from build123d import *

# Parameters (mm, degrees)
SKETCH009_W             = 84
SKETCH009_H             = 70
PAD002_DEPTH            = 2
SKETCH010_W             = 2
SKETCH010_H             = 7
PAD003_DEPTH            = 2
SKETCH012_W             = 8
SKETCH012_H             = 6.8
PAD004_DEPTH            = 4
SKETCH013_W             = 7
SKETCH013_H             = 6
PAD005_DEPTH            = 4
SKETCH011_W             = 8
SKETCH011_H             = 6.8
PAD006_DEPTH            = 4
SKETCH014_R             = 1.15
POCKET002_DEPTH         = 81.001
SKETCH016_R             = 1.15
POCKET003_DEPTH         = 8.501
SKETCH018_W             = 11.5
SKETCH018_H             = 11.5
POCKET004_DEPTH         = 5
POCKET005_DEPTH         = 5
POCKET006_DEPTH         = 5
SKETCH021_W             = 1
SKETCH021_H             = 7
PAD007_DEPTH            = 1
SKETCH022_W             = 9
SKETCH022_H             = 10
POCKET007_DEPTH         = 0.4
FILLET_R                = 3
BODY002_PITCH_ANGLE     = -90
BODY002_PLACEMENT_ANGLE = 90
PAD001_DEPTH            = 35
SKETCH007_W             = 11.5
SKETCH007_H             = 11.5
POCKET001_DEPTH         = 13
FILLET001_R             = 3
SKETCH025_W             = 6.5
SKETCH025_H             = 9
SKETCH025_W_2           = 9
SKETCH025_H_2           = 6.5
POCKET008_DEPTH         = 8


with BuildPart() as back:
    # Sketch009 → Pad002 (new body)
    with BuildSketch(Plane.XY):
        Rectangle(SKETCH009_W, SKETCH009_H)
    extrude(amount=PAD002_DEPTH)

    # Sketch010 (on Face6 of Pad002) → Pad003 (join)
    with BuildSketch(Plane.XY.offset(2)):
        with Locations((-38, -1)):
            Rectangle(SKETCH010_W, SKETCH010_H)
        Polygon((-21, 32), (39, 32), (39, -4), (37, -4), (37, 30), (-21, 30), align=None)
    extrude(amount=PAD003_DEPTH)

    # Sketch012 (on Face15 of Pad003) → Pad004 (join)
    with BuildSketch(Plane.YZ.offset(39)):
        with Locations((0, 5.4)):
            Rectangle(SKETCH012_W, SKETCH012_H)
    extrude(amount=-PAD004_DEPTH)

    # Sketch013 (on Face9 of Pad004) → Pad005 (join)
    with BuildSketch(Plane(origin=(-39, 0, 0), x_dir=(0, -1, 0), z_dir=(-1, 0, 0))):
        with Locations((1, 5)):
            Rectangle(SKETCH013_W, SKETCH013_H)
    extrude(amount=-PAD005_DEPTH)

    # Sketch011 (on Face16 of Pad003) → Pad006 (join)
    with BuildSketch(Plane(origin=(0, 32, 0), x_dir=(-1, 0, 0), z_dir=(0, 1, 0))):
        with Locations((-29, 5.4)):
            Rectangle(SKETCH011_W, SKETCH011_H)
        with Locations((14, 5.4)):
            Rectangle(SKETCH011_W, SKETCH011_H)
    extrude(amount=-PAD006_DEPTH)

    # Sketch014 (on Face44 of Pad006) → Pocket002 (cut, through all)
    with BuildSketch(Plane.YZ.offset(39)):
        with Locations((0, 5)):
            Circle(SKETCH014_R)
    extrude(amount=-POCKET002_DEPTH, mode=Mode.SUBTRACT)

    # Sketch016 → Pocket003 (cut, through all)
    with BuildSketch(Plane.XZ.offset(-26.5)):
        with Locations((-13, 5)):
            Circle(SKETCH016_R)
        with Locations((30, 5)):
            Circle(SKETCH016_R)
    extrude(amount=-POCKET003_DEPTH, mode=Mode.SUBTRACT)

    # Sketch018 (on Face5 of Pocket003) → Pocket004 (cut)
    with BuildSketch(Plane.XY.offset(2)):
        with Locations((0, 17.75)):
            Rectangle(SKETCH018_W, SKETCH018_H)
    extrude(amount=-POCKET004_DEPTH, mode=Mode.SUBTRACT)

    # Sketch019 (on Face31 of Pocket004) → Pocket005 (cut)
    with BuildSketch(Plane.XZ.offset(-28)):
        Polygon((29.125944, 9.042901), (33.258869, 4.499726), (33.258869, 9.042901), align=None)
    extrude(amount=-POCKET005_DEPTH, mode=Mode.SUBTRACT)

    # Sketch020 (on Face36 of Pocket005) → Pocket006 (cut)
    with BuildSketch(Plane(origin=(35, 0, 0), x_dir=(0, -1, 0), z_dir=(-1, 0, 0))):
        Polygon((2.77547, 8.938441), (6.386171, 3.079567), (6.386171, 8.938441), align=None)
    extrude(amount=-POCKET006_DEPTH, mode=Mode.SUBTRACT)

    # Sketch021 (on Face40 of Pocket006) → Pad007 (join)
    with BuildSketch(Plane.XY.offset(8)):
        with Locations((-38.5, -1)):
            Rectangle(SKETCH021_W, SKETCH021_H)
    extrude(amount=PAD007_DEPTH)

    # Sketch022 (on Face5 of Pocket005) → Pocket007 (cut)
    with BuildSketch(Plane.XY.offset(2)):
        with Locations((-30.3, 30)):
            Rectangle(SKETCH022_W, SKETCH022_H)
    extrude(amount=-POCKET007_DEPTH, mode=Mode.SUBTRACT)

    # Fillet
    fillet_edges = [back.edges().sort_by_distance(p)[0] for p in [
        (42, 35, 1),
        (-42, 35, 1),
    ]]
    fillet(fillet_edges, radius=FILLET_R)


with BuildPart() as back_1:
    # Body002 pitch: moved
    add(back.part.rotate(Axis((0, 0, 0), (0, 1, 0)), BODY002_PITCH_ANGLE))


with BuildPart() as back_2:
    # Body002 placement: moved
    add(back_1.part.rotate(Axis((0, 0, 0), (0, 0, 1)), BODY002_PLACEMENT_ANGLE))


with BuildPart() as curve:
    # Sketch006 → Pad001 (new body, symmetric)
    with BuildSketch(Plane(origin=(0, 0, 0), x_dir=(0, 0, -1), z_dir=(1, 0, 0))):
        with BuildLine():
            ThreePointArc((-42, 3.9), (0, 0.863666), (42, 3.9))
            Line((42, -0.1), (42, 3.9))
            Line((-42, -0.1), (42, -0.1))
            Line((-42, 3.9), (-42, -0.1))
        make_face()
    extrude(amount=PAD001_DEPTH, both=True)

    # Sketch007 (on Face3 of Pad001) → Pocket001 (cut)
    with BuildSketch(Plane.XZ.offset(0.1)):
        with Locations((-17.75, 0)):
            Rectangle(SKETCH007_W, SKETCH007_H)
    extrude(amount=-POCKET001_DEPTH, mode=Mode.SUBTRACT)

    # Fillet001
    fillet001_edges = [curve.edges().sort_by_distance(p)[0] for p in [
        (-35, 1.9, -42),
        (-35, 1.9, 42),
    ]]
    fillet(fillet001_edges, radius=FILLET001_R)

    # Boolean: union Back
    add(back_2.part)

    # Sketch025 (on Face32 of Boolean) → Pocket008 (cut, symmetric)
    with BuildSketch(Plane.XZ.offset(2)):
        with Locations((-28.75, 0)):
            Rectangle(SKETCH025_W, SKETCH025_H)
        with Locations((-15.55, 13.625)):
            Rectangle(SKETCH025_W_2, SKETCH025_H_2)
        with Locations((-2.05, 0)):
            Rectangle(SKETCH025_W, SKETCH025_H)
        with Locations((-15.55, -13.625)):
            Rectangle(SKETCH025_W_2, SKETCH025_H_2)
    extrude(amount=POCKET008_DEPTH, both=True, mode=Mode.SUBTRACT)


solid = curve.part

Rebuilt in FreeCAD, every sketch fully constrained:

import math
import FreeCAD as App
import Part
import Sketcher
from FreeCAD import Vector


def edges_at(feature, points):
    """Names of the edges that pass closest to the given points."""
    edges = feature.Shape.Edges
    near = lambda p: min(range(len(edges)), key=lambda i: edges[i].distToShape(Part.Vertex(*p))[0])
    return sorted({f"Edge{near(p) + 1}" for p in points})


def add_polygon(sketch, points):
    """Adds a closed chain of lines whose ends are joined by coincident constraints."""
    first, n = sketch.GeometryCount, len(points)
    for a, b in zip(points, points[1:] + points[:1]):
        sketch.addGeometry(Part.LineSegment(App.Vector(*a, 0), App.Vector(*b, 0)), False)
    for i in range(n):
        sketch.addConstraint(Sketcher.Constraint("Coincident", first + i, 2, first + (i + 1) % n, 1))

doc = App.newDocument("Part")
body = doc.addObject("PartDesign::Body", "Body")

# Sketch on XY plane
sketch1 = doc.addObject("Sketcher::SketchObject", "Sketch")
body.addObject(sketch1)
sketch1.AttachmentSupport = (doc.XY_Plane, [""])
sketch1.MapMode = "FlatFace"
add_polygon(sketch1, [(-42, 35), (-42, -35), (42, -35), (42, 35)])  # lines 0-3
sketch1.addConstraint([
    Sketcher.Constraint("Vertical", 0),
    Sketcher.Constraint("Horizontal", 1),
    Sketcher.Constraint("Vertical", 2),
    Sketcher.Constraint("Horizontal", 3),
    Sketcher.Constraint("Symmetric", 0, 2, 2, 2, -1, 1),
    Sketcher.Constraint("DistanceX", 1, 1, 1, 2, 84.0),
    Sketcher.Constraint("DistanceY", 0, 2, 0, 1, 70.0),
])
pad1 = doc.addObject("PartDesign::Pad", "Pad")
body.addObject(pad1)
pad1.Profile = sketch1
pad1.Length = 2

# Sketch on XY plane
sketch2 = doc.addObject("Sketcher::SketchObject", "Sketch001")
body.addObject(sketch2)
sketch2.AttachmentSupport = (doc.XY_Plane, [""])
sketch2.MapMode = "FlatFace"
sketch2.AttachmentOffset = App.Placement(Vector(0, 0, 2), App.Rotation())
add_polygon(sketch2, [(-39, 2.5), (-39, -4.5), (-37, -4.5), (-37, 2.5)])  # lines 0-3
add_polygon(sketch2, [(39, 32), (-21, 32), (-21, 30), (37, 30), (37, -4), (39, -4)])  # lines 4-9
sketch2.addConstraint([
    Sketcher.Constraint("Vertical", 0),
    Sketcher.Constraint("Horizontal", 1),
    Sketcher.Constraint("Vertical", 2),
    Sketcher.Constraint("Horizontal", 3),
    Sketcher.Constraint("Horizontal", 4),
    Sketcher.Constraint("Vertical", 5),
    Sketcher.Constraint("Horizontal", 6),
    Sketcher.Constraint("Vertical", 7),
    Sketcher.Constraint("Horizontal", 8),
    Sketcher.Constraint("Vertical", 9),
    Sketcher.Constraint("Equal", 3, 8),
    Sketcher.Constraint("Equal", 8, 5),
    Sketcher.Constraint("DistanceX", 1, 1, 1, 2, 2.0),
    Sketcher.Constraint("DistanceX", 4, 2, 4, 1, 60.0),
    Sketcher.Constraint("DistanceY", 0, 2, 0, 1, 7.0),
    Sketcher.Constraint("DistanceY", 7, 2, 7, 1, 34.0),
    Sketcher.Constraint("DistanceX", 0, 2, -1, 1, 39.0),
    Sketcher.Constraint("DistanceX", 4, 2, -1, 1, 21.0),
    Sketcher.Constraint("DistanceY", -1, 1, 4, 2, 32.0),
    Sketcher.Constraint("DistanceY", 0, 2, -1, 1, 4.5),
])
pad2 = doc.addObject("PartDesign::Pad", "Pad001")
body.addObject(pad2)
pad2.Profile = sketch2
pad2.Length = 2

# Sketch on YZ plane
sketch3 = doc.addObject("Sketcher::SketchObject", "Sketch002")
body.addObject(sketch3)
sketch3.AttachmentSupport = (doc.YZ_Plane, [""])
sketch3.MapMode = "FlatFace"
sketch3.AttachmentOffset = App.Placement(Vector(0, 0, 39), App.Rotation())
add_polygon(sketch3, [(-4, 8.8), (-4, 2), (4, 2), (4, 8.8)])  # lines 0-3
sketch3.addConstraint([
    Sketcher.Constraint("Vertical", 0),
    Sketcher.Constraint("Horizontal", 1),
    Sketcher.Constraint("Vertical", 2),
    Sketcher.Constraint("Horizontal", 3),
    Sketcher.Constraint("DistanceX", 1, 1, 1, 2, 8.0),
    Sketcher.Constraint("DistanceY", 0, 2, 0, 1, 6.8),
    Sketcher.Constraint("DistanceX", 0, 2, -1, 1, 4.0),
    Sketcher.Constraint("DistanceY", -1, 1, 0, 2, 2.0),
])
pad3 = doc.addObject("PartDesign::Pad", "Pad002")
body.addObject(pad3)
pad3.Profile = sketch3
pad3.Length = 4
pad3.Reversed = True

# Sketch on YZ plane
sketch4 = doc.addObject("Sketcher::SketchObject", "Sketch003")
body.addObject(sketch4)
sketch4.AttachmentSupport = (doc.YZ_Plane, [""])
sketch4.MapMode = "FlatFace"
sketch4.AttachmentOffset = App.Placement(Vector(0, 0, -39), App.Rotation())
add_polygon(sketch4, [(2.5, 8), (2.5, 2), (-4.5, 2), (-4.5, 8)])  # lines 0-3
sketch4.addConstraint([
    Sketcher.Constraint("Vertical", 0),
    Sketcher.Constraint("Horizontal", 1),
    Sketcher.Constraint("Vertical", 2),
    Sketcher.Constraint("Horizontal", 3),
    Sketcher.Constraint("DistanceX", 1, 2, 1, 1, 7.0),
    Sketcher.Constraint("DistanceY", 0, 2, 0, 1, 6.0),
    Sketcher.Constraint("DistanceY", -1, 1, 0, 2, 2.0),
    Sketcher.Constraint("DistanceX", -1, 1, 0, 2, 2.5),
])
pad4 = doc.addObject("PartDesign::Pad", "Pad003")
body.addObject(pad4)
pad4.Profile = sketch4
pad4.Length = 4

# Sketch on XZ plane
sketch5 = doc.addObject("Sketcher::SketchObject", "Sketch004")
body.addObject(sketch5)
sketch5.AttachmentSupport = (doc.XZ_Plane, [""])
sketch5.MapMode = "FlatFace"
sketch5.AttachmentOffset = App.Placement(Vector(0, 0, -32), App.Rotation())
add_polygon(sketch5, [(33, 8.8), (33, 2), (25, 2), (25, 8.8)])  # lines 0-3
add_polygon(sketch5, [(-10, 8.8), (-10, 2), (-18, 2), (-18, 8.8)])  # lines 4-7
sketch5.addConstraint([
    Sketcher.Constraint("Vertical", 0),
    Sketcher.Constraint("Horizontal", 1),
    Sketcher.Constraint("Vertical", 2),
    Sketcher.Constraint("Horizontal", 3),
    Sketcher.Constraint("Vertical", 4),
    Sketcher.Constraint("Horizontal", 5),
    Sketcher.Constraint("Vertical", 6),
    Sketcher.Constraint("Horizontal", 7),
    Sketcher.Constraint("Horizontal", 1, 2, 4, 2),
    Sketcher.Constraint("Horizontal", 3, 2, 6, 2),
    Sketcher.Constraint("Equal", 3, 5),
    Sketcher.Constraint("DistanceX", 1, 2, 1, 1, 8.0),
    Sketcher.Constraint("DistanceY", 0, 2, 0, 1, 6.8),
    Sketcher.Constraint("DistanceX", -1, 1, 0, 2, 33.0),
    Sketcher.Constraint("DistanceY", -1, 1, 0, 2, 2.0),
    Sketcher.Constraint("DistanceX", 4, 2, -1, 1, 10.0),
])
pad5 = doc.addObject("PartDesign::Pad", "Pad004")
body.addObject(pad5)
pad5.Profile = sketch5
pad5.Length = 4

# Sketch on YZ plane
sketch6 = doc.addObject("Sketcher::SketchObject", "Sketch005")
body.addObject(sketch6)
sketch6.AttachmentSupport = (doc.YZ_Plane, [""])
sketch6.MapMode = "FlatFace"
sketch6.AttachmentOffset = App.Placement(Vector(0, 0, 39), App.Rotation())
sketch6.addGeometry(Part.Circle(Vector(0, 5, 0), Vector(0, 0, 1), 1.15), False)
sketch6.addConstraint([
    Sketcher.Constraint("PointOnObject", 0, 3, -2),
    Sketcher.Constraint("Diameter", 0, 2.3),
    Sketcher.Constraint("DistanceY", -1, 1, 0, 3, 5.0),
])
pocket1 = doc.addObject("PartDesign::Pocket", "Pocket")
body.addObject(pocket1)
pocket1.Profile = sketch6
pocket1.Type = "ThroughAll"

# Sketch on XZ plane
sketch7 = doc.addObject("Sketcher::SketchObject", "Sketch006")
body.addObject(sketch7)
sketch7.AttachmentSupport = (doc.XZ_Plane, [""])
sketch7.MapMode = "FlatFace"
sketch7.AttachmentOffset = App.Placement(Vector(0, 0, -26.5), App.Rotation())
sketch7.addGeometry([
    Part.Circle(Vector(-13, 5, 0), Vector(0, 0, 1), 1.15),
    Part.Circle(Vector(30, 5, 0), Vector(0, 0, 1), 1.15),
], False)
sketch7.addConstraint([
    Sketcher.Constraint("Equal", 0, 1),
    Sketcher.Constraint("Horizontal", 0, 3, 1, 3),
    Sketcher.Constraint("Diameter", 0, 2.3),
    Sketcher.Constraint("DistanceX", 0, 3, -1, 1, 13.0),
    Sketcher.Constraint("DistanceY", -1, 1, 0, 3, 5.0),
    Sketcher.Constraint("DistanceX", -1, 1, 1, 3, 30.0),
])
pocket2 = doc.addObject("PartDesign::Pocket", "Pocket001")
body.addObject(pocket2)
pocket2.Profile = sketch7
pocket2.Type = "ThroughAll"

# Sketch on XY plane
sketch8 = doc.addObject("Sketcher::SketchObject", "Sketch007")
body.addObject(sketch8)
sketch8.AttachmentSupport = (doc.XY_Plane, [""])
sketch8.MapMode = "FlatFace"
sketch8.AttachmentOffset = App.Placement(Vector(0, 0, 2), App.Rotation())
add_polygon(sketch8, [(-5.75, 23.5), (-5.75, 12), (5.75, 12), (5.75, 23.5)])  # lines 0-3
sketch8.addConstraint([
    Sketcher.Constraint("Vertical", 0),
    Sketcher.Constraint("Horizontal", 1),
    Sketcher.Constraint("Vertical", 2),
    Sketcher.Constraint("Horizontal", 3),
    Sketcher.Constraint("Equal", 3, 0),
    Sketcher.Constraint("DistanceX", 1, 1, 1, 2, 11.5),
    Sketcher.Constraint("DistanceY", -1, 1, 0, 2, 12.0),
    Sketcher.Constraint("DistanceX", 0, 2, -1, 1, 5.75),
])
pocket3 = doc.addObject("PartDesign::Pocket", "Pocket002")
body.addObject(pocket3)
pocket3.Profile = sketch8
pocket3.Length = 5

# Sketch on XZ plane
sketch9 = doc.addObject("Sketcher::SketchObject", "Sketch008")
body.addObject(sketch9)
sketch9.AttachmentSupport = (doc.XZ_Plane, [""])
sketch9.MapMode = "FlatFace"
sketch9.AttachmentOffset = App.Placement(Vector(0, 0, -28), App.Rotation())
add_polygon(sketch9, [(29.125944, 9.042901), (33.258869, 4.499726), (33.258869, 9.042901)])  # lines 0-2
sketch9.addConstraint([
    Sketcher.Constraint("Vertical", 1),
    Sketcher.Constraint("Horizontal", 2),
    Sketcher.Constraint("DistanceY", -1, 1, 1, 2, 9.042901),
    Sketcher.Constraint("DistanceX", 2, 2, 2, 1, 4.132925),
    Sketcher.Constraint("DistanceY", 1, 1, 1, 2, 4.543175),
    Sketcher.Constraint("DistanceX", -1, 1, 0, 2, 33.258869),
])
pocket4 = doc.addObject("PartDesign::Pocket", "Pocket003")
body.addObject(pocket4)
pocket4.Profile = sketch9
pocket4.Length = 5

# Sketch on YZ plane
sketch10 = doc.addObject("Sketcher::SketchObject", "Sketch009")
body.addObject(sketch10)
sketch10.AttachmentSupport = (doc.YZ_Plane, [""])
sketch10.MapMode = "FlatFace"
sketch10.AttachmentOffset = App.Placement(Vector(0, 0, 35), App.Rotation())
add_polygon(sketch10, [(-2.77547, 8.938441), (-6.386171, 3.079567), (-6.386171, 8.938441)])  # lines 0-2
sketch10.addConstraint([
    Sketcher.Constraint("Vertical", 1),
    Sketcher.Constraint("Horizontal", 2),
    Sketcher.Constraint("DistanceX", 2, 1, 2, 2, 3.610701),
    Sketcher.Constraint("Distance", 0, 6.882119),
    Sketcher.Constraint("DistanceX", 0, 2, -1, 1, 6.386171),
    Sketcher.Constraint("DistanceY", -1, 1, 1, 2, 8.938441),
])
pocket5 = doc.addObject("PartDesign::Pocket", "Pocket004")
body.addObject(pocket5)
pocket5.Profile = sketch10
pocket5.Length = 5
pocket5.Reversed = True

# Sketch on XY plane
sketch11 = doc.addObject("Sketcher::SketchObject", "Sketch010")
body.addObject(sketch11)
sketch11.AttachmentSupport = (doc.XY_Plane, [""])
sketch11.MapMode = "FlatFace"
sketch11.AttachmentOffset = App.Placement(Vector(0, 0, 8), App.Rotation())
add_polygon(sketch11, [(-39, 2.5), (-39, -4.5), (-38, -4.5), (-38, 2.5)])  # lines 0-3
sketch11.addConstraint([
    Sketcher.Constraint("Vertical", 0),
    Sketcher.Constraint("Horizontal", 1),
    Sketcher.Constraint("Vertical", 2),
    Sketcher.Constraint("Horizontal", 3),
    Sketcher.Constraint("DistanceX", 1, 1, 1, 2, 1.0),
    Sketcher.Constraint("DistanceY", 0, 2, 0, 1, 7.0),
    Sketcher.Constraint("DistanceX", 0, 2, -1, 1, 39.0),
    Sketcher.Constraint("DistanceY", 0, 2, -1, 1, 4.5),
])
pad6 = doc.addObject("PartDesign::Pad", "Pad005")
body.addObject(pad6)
pad6.Profile = sketch11
pad6.Length = 1

# Sketch on XY plane
sketch12 = doc.addObject("Sketcher::SketchObject", "Sketch011")
body.addObject(sketch12)
sketch12.AttachmentSupport = (doc.XY_Plane, [""])
sketch12.MapMode = "FlatFace"
sketch12.AttachmentOffset = App.Placement(Vector(0, 0, 2), App.Rotation())
add_polygon(sketch12, [(-34.8, 35), (-34.8, 25), (-25.8, 25), (-25.8, 35)])  # lines 0-3
sketch12.addConstraint([
    Sketcher.Constraint("Vertical", 0),
    Sketcher.Constraint("Horizontal", 1),
    Sketcher.Constraint("Vertical", 2),
    Sketcher.Constraint("Horizontal", 3),
    Sketcher.Constraint("DistanceX", 1, 1, 1, 2, 9.0),
    Sketcher.Constraint("DistanceY", 0, 2, 0, 1, 10.0),
    Sketcher.Constraint("DistanceY", -1, 1, 0, 2, 25.0),
    Sketcher.Constraint("DistanceX", 0, 2, -1, 1, 34.8),
])
pocket6 = doc.addObject("PartDesign::Pocket", "Pocket005")
body.addObject(pocket6)
pocket6.Profile = sketch12
pocket6.Length = 0.4
doc.recompute()

fillet = doc.addObject("PartDesign::Fillet", "Fillet")
body.addObject(fillet)
fillet.Base = (pocket6, edges_at(pocket6, [(42, 35, 1), (-42, 35, 1)]))
fillet.Radius = 3
body2 = doc.addObject("PartDesign::Body", "Body001")
doc.recompute()

body.Placement = App.Placement(Vector(0, 0, 0), App.Rotation(Vector(0, 1, 0), 270))
boolean = doc.addObject("PartDesign::Boolean", "Boolean")
body2.addObject(boolean)
boolean.Type = "Fuse"
boolean.addObjects([body])
body3 = doc.addObject("PartDesign::Body", "Body002")
doc.recompute()

body2.Placement = App.Placement(Vector(0, 0, 0), App.Rotation(Vector(0, 0, 1), 90))
boolean2 = doc.addObject("PartDesign::Boolean", "Boolean001")
body3.addObject(boolean2)
boolean2.Type = "Fuse"
boolean2.addObjects([body2])
body4 = doc.addObject("PartDesign::Body", "Body003")

# Sketch on YZ plane
sketch13 = doc.addObject("Sketcher::SketchObject", "Sketch012")
body4.addObject(sketch13)
sketch13.AttachmentSupport = (doc.getObject("YZ_Plane003"), [""])
sketch13.MapMode = "FlatFace"
sketch13.addGeometry([
    Part.ArcOfCircle(Part.Circle(Vector(292.86371, 0, 0), Vector(0, 0, 1), 292.000044), math.radians(171.730143), math.radians(188.269857)),
    Part.LineSegment(Vector(3.9, 42, 0), Vector(-0.1, 42, 0)),
    Part.LineSegment(Vector(-0.1, 42, 0), Vector(-0.1, -42, 0)),
    Part.LineSegment(Vector(-0.1, -42, 0), Vector(3.9, -42, 0)),
], False)
sketch13.addConstraint([
    Sketcher.Constraint("Coincident", 0, 1, 1, 1),
    Sketcher.Constraint("Coincident", 1, 2, 2, 1),
    Sketcher.Constraint("Coincident", 2, 2, 3, 1),
    Sketcher.Constraint("Coincident", 3, 2, 0, 2),
    Sketcher.Constraint("Horizontal", 1),
    Sketcher.Constraint("Vertical", 2),
    Sketcher.Constraint("Horizontal", 3),
    Sketcher.Constraint("Symmetric", 0, 1, 3, 2, -1),
    Sketcher.Constraint("DistanceX", 1, 2, 1, 1, 4.0),
    Sketcher.Constraint("DistanceY", 2, 2, 2, 1, 84.0),
    Sketcher.Constraint("DistanceX", -1, 1, 0, 1, 3.9),
    Sketcher.Constraint("Radius", 0, 292.000044),
])
pad7 = doc.addObject("PartDesign::Pad", "Pad006")
body4.addObject(pad7)
pad7.Profile = sketch13
pad7.Length = 70
pad7.Midplane = True

# Sketch on XZ plane
sketch14 = doc.addObject("Sketcher::SketchObject", "Sketch013")
body4.addObject(sketch14)
sketch14.AttachmentSupport = (doc.getObject("XZ_Plane003"), [""])
sketch14.MapMode = "FlatFace"
sketch14.AttachmentOffset = App.Placement(Vector(0, 0, 0.1), App.Rotation())
add_polygon(sketch14, [(-23.5, 5.75), (-23.5, -5.75), (-12, -5.75), (-12, 5.75)])  # lines 0-3
sketch14.addConstraint([
    Sketcher.Constraint("Vertical", 0),
    Sketcher.Constraint("Horizontal", 1),
    Sketcher.Constraint("Vertical", 2),
    Sketcher.Constraint("Horizontal", 3),
    Sketcher.Constraint("Equal", 3, 0),
    Sketcher.Constraint("DistanceX", 1, 1, 1, 2, 11.5),
    Sketcher.Constraint("DistanceX", 1, 2, -1, 1, 12.0),
    Sketcher.Constraint("DistanceY", 0, 2, -1, 1, 5.75),
])
pocket7 = doc.addObject("PartDesign::Pocket", "Pocket006")
body4.addObject(pocket7)
pocket7.Profile = sketch14
pocket7.Length = 13
doc.recompute()

fillet2 = doc.addObject("PartDesign::Fillet", "Fillet001")
body4.addObject(fillet2)
fillet2.Base = (pocket7, edges_at(pocket7, [(-35, 1.9, -42), (-35, 1.9, 42)]))
fillet2.Radius = 3
doc.recompute()

boolean3 = doc.addObject("PartDesign::Boolean", "Boolean002")
body4.addObject(boolean3)
boolean3.Type = "Fuse"
boolean3.addObjects([body3])

# Sketch on XZ plane
sketch15 = doc.addObject("Sketcher::SketchObject", "Sketch014")
body4.addObject(sketch15)
sketch15.AttachmentSupport = (doc.getObject("XZ_Plane003"), [""])
sketch15.MapMode = "FlatFace"
sketch15.AttachmentOffset = App.Placement(Vector(0, 0, 2), App.Rotation())
add_polygon(sketch15, [(-32, 4.5), (-32, -4.5), (-25.5, -4.5), (-25.5, 4.5)])  # lines 0-3
add_polygon(sketch15, [(-20.05, 16.875), (-20.05, 10.375), (-11.05, 10.375), (-11.05, 16.875)])  # lines 4-7
add_polygon(sketch15, [(-5.3, 4.5), (-5.3, -4.5), (1.2, -4.5), (1.2, 4.5)])  # lines 8-11
add_polygon(sketch15, [(-20.05, -10.375), (-20.05, -16.875), (-11.05, -16.875), (-11.05, -10.375)])  # lines 12-15
sketch15.addConstraint([
    Sketcher.Constraint("Vertical", 0),
    Sketcher.Constraint("Horizontal", 1),
    Sketcher.Constraint("Vertical", 2),
    Sketcher.Constraint("Horizontal", 3),
    Sketcher.Constraint("Vertical", 4),
    Sketcher.Constraint("Horizontal", 5),
    Sketcher.Constraint("Vertical", 6),
    Sketcher.Constraint("Horizontal", 7),
    Sketcher.Constraint("Vertical", 8),
    Sketcher.Constraint("Horizontal", 9),
    Sketcher.Constraint("Vertical", 10),
    Sketcher.Constraint("Horizontal", 11),
    Sketcher.Constraint("Vertical", 12),
    Sketcher.Constraint("Horizontal", 13),
    Sketcher.Constraint("Vertical", 14),
    Sketcher.Constraint("Horizontal", 15),
    Sketcher.Constraint("Symmetric", 7, 2, 12, 2, -1),
    Sketcher.Constraint("Symmetric", 5, 2, 14, 2, -1),
    Sketcher.Constraint("Horizontal", 1, 2, 8, 2),
    Sketcher.Constraint("Horizontal", 3, 2, 10, 2),
    Sketcher.Constraint("Equal", 3, 9),
    Sketcher.Constraint("Equal", 15, 0),
    Sketcher.Constraint("Equal", 11, 4),
    Sketcher.Constraint("DistanceX", 5, 1, 5, 2, 9.0),
    Sketcher.Constraint("DistanceX", 1, 1, 1, 2, 6.5),
    Sketcher.Constraint("DistanceX", 0, 2, -1, 1, 32.0),
    Sketcher.Constraint("DistanceY", 0, 2, -1, 1, 4.5),
    Sketcher.Constraint("DistanceX", 8, 2, -1, 1, 5.3),
    Sketcher.Constraint("DistanceX", 4, 2, -1, 1, 20.05),
    Sketcher.Constraint("DistanceY", -1, 1, 4, 2, 10.375),
])
pocket8 = doc.addObject("PartDesign::Pocket", "Pocket007")
body4.addObject(pocket8)
pocket8.Profile = sketch15
pocket8.Length = 16
pocket8.Midplane = True

doc.recompute()
